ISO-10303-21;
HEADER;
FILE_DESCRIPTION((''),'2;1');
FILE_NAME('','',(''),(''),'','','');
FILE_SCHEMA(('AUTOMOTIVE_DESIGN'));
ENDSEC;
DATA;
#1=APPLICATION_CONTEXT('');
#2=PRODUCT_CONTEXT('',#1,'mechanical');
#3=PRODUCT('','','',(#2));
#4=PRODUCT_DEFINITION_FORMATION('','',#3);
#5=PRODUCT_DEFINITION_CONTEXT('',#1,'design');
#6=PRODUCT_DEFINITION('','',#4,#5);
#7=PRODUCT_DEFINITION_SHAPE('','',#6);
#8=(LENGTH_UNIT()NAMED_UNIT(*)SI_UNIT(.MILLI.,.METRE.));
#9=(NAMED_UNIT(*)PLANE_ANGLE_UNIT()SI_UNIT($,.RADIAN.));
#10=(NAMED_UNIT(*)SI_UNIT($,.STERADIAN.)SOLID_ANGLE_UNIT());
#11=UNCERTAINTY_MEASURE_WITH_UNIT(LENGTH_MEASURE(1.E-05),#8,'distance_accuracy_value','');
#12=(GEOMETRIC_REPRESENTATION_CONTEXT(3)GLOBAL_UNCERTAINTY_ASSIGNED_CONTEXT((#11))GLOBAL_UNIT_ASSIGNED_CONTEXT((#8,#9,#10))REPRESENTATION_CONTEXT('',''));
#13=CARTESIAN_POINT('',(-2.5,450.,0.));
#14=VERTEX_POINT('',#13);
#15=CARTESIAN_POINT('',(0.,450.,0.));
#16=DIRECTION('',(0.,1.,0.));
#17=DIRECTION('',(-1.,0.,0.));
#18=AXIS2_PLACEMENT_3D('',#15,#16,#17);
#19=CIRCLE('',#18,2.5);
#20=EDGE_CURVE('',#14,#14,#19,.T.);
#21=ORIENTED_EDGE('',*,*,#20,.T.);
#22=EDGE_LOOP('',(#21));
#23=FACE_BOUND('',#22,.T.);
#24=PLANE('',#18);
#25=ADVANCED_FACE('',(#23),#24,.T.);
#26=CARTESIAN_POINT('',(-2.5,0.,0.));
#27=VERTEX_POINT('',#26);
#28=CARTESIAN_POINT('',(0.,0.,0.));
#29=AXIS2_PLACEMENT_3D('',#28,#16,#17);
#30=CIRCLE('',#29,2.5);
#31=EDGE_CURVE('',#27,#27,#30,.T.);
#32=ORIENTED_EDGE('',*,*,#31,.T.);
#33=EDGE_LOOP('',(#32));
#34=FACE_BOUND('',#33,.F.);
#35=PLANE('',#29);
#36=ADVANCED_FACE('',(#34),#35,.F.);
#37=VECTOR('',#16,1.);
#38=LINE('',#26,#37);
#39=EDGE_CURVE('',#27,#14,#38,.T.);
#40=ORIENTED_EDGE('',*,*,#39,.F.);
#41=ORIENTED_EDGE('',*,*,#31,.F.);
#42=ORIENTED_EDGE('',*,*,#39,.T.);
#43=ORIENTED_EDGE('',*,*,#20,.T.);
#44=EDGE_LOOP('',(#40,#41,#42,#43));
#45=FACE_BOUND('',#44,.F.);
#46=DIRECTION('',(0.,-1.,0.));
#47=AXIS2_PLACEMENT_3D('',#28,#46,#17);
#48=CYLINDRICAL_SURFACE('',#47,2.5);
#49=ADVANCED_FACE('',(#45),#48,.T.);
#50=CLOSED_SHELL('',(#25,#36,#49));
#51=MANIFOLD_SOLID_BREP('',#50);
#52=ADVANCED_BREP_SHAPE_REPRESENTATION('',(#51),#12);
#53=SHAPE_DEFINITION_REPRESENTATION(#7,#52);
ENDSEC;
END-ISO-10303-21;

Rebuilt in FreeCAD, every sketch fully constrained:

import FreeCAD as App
import Part
import Sketcher
from FreeCAD import Vector

doc = App.newDocument("Part")
body = doc.addObject("PartDesign::Body", "Body")

# Sketch on XZ plane
sketch1 = doc.addObject("Sketcher::SketchObject", "Sketch")
body.addObject(sketch1)
sketch1.AttachmentSupport = (doc.XZ_Plane, [""])
sketch1.MapMode = "FlatFace"
sketch1.addGeometry(Part.Circle(Vector(0, 0, 0), Vector(0, 0, 1), 2.5), False)
sketch1.addConstraint([
    Sketcher.Constraint("Coincident", 0, 3, -1, 1),
    Sketcher.Constraint("Diameter", 0, 5.0),
])
pad1 = doc.addObject("PartDesign::Pad", "Pad")
body.addObject(pad1)
pad1.Profile = sketch1
pad1.Length = 450
pad1.Reversed = True

doc.recompute()
